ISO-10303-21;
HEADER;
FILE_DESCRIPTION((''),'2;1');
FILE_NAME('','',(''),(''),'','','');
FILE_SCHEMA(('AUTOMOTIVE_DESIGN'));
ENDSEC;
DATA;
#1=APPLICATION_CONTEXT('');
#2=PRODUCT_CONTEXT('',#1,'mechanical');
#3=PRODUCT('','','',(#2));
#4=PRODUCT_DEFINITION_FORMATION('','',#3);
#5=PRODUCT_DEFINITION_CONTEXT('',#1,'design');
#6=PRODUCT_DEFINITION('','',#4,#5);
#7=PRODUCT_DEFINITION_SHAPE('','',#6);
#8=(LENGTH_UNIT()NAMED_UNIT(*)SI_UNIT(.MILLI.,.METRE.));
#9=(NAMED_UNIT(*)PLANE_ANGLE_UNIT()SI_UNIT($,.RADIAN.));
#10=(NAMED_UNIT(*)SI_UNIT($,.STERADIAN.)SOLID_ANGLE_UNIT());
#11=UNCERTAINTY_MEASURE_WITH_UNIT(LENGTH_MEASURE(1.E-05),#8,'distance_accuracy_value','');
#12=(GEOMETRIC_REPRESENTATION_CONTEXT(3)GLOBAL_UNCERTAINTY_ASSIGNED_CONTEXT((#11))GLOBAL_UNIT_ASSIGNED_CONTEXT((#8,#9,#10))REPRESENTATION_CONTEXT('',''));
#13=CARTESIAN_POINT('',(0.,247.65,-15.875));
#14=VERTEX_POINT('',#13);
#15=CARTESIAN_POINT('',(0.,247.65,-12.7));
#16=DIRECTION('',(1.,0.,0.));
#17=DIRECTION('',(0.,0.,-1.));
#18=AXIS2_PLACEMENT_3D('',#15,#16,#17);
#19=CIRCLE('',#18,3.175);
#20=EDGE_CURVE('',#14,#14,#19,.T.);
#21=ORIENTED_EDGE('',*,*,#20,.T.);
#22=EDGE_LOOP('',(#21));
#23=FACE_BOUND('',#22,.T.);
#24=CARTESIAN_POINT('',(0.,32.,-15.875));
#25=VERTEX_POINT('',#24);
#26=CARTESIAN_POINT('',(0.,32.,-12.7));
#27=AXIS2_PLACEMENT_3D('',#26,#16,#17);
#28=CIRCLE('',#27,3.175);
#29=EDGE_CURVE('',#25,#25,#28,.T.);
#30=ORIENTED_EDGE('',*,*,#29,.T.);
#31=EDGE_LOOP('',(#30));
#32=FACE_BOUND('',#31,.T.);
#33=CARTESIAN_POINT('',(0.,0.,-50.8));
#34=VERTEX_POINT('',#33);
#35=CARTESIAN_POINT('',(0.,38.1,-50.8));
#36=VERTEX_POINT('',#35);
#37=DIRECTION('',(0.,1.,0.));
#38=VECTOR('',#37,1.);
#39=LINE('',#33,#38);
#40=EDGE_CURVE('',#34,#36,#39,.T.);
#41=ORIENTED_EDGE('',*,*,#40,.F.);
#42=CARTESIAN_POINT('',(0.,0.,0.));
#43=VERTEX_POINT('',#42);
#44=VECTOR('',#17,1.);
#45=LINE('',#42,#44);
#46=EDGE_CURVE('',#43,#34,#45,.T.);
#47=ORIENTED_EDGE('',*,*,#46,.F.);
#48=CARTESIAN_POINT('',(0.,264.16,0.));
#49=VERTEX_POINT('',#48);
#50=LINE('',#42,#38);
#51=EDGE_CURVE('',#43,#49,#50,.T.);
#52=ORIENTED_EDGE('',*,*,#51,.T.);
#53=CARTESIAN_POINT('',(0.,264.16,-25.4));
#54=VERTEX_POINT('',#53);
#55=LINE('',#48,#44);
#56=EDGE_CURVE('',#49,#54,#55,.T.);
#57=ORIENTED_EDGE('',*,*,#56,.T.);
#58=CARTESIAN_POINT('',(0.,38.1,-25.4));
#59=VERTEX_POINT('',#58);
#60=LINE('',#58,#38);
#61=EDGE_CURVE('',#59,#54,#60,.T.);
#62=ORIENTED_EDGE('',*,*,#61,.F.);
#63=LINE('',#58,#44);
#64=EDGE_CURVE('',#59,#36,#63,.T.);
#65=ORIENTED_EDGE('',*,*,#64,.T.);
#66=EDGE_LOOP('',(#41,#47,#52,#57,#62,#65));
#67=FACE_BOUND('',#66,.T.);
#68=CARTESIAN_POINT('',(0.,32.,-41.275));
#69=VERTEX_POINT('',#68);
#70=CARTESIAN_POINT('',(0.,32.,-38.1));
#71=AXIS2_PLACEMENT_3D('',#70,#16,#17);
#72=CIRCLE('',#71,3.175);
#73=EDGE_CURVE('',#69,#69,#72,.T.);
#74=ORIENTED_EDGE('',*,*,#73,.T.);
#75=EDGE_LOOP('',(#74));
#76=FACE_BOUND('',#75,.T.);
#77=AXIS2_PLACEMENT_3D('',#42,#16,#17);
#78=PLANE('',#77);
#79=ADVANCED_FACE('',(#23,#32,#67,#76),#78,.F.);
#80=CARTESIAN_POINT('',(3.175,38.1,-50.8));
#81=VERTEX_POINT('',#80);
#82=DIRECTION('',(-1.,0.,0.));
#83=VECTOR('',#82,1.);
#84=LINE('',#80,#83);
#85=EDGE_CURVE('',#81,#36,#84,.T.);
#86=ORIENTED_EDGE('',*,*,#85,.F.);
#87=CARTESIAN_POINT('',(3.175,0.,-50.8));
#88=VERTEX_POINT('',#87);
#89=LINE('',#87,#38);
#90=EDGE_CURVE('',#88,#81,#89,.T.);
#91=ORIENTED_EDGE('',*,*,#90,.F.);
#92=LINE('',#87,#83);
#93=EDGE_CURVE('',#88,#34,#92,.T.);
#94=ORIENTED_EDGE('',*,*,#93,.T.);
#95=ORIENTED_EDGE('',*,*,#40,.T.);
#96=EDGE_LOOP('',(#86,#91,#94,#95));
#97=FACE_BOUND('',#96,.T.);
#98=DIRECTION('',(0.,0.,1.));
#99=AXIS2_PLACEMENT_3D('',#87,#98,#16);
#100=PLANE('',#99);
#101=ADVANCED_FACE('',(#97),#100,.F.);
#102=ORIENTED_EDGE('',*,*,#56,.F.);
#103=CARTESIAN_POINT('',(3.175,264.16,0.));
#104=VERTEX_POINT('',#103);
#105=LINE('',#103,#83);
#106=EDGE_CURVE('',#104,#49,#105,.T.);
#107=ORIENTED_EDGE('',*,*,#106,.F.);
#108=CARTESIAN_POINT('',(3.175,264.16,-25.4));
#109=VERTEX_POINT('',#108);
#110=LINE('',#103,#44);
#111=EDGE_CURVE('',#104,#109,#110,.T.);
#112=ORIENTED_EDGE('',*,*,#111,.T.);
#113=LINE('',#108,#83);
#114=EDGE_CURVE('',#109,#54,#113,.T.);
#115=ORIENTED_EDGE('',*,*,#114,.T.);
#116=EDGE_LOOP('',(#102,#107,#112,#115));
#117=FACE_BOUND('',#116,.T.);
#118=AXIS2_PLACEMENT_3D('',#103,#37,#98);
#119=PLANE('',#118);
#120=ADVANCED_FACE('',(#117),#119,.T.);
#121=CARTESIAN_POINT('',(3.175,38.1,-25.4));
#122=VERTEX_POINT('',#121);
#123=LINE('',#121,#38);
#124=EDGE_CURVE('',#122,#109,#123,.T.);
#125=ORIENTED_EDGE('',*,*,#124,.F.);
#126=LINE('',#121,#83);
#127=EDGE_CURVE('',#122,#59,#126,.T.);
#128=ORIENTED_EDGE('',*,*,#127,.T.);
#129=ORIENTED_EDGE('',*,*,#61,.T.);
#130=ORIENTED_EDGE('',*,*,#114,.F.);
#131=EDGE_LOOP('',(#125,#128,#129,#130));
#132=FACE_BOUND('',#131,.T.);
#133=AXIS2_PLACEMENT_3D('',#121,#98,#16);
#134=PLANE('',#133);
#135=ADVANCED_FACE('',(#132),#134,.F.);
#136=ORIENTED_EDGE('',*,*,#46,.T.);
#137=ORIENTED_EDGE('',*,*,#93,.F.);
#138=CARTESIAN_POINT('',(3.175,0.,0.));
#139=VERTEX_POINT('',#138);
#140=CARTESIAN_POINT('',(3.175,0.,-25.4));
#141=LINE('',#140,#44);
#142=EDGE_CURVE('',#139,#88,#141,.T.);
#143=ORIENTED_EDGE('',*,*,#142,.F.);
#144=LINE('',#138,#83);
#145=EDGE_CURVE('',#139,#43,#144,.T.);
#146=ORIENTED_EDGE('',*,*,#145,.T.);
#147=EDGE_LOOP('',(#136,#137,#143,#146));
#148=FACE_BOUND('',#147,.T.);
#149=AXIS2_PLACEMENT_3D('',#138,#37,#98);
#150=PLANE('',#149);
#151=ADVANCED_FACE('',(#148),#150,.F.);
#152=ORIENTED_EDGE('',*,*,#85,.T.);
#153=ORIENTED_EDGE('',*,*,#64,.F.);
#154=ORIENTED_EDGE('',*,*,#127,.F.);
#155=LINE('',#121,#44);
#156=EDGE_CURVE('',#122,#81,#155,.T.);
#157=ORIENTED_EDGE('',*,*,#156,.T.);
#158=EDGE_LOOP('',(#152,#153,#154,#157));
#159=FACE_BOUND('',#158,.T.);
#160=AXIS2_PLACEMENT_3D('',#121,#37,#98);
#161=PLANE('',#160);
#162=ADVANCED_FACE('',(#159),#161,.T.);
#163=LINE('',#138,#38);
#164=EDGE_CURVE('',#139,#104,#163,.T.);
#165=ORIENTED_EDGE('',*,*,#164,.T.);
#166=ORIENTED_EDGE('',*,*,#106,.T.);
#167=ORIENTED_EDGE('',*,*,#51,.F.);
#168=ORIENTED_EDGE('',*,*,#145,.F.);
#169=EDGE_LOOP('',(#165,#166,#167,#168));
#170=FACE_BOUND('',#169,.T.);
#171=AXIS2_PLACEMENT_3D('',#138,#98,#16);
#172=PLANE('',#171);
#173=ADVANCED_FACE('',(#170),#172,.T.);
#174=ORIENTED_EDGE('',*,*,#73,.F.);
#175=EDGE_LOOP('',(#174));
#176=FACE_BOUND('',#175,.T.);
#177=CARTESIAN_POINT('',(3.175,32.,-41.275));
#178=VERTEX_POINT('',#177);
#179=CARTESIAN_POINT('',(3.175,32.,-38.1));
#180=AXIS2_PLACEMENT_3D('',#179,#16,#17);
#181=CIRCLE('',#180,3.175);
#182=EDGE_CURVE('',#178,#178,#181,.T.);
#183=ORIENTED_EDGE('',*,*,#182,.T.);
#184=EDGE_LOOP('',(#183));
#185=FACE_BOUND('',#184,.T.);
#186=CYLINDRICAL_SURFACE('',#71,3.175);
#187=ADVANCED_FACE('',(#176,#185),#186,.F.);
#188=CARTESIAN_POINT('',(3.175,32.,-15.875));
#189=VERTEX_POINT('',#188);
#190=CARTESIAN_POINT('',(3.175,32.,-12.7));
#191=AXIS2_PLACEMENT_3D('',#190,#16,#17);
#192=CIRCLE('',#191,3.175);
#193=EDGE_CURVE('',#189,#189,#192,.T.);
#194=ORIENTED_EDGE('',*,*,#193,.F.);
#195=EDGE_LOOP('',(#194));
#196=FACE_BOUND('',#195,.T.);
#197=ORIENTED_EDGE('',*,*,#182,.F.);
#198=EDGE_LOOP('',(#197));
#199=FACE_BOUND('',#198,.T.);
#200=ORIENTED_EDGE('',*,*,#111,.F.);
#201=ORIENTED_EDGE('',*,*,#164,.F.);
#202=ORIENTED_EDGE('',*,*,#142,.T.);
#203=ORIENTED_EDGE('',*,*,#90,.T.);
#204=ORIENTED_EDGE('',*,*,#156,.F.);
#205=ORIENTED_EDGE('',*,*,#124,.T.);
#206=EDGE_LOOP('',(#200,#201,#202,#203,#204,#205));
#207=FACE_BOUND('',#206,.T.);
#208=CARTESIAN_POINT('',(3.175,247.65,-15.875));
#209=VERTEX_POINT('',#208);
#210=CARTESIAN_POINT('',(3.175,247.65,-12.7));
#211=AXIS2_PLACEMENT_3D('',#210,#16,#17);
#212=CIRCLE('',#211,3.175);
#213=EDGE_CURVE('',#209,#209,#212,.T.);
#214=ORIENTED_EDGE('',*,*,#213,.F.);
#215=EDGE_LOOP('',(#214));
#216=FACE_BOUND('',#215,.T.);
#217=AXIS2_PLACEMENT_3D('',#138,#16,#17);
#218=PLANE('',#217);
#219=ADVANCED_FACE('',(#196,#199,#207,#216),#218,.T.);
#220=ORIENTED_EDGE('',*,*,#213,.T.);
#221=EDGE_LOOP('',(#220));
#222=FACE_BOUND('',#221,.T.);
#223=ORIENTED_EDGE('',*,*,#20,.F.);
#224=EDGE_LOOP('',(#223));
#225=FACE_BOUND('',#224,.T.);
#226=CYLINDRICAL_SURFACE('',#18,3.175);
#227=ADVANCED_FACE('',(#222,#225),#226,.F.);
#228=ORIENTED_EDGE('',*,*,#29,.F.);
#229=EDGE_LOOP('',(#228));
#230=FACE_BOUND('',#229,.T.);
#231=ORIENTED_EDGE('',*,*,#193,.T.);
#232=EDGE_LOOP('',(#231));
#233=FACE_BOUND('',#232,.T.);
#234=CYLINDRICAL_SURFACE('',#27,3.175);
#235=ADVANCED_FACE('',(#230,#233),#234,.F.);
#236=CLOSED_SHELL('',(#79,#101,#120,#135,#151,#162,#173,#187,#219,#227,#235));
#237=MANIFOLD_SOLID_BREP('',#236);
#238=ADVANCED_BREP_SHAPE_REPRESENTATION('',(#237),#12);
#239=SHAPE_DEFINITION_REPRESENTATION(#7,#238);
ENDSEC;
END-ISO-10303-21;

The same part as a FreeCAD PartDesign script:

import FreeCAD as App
import Part
import Sketcher

V = App.Vector
Q = App.Units.Quantity

doc = App.newDocument("Part")
body = doc.addObject("PartDesign::Body", "Body")

# Sketch on YZ plane
sketch1 = body.newObject("Sketcher::SketchObject", "Sketch")
sketch1.AttachmentSupport = (doc.getObject("YZ_Plane"), [""])
sketch1.MapMode = "FlatFace"
sketch1.addGeometry(Part.LineSegment(V(0, 0, 0), V(0, -51, 0)), False)
sketch1.addGeometry(Part.LineSegment(V(0, -51, 0), V(38, -51, 0)), False)
sketch1.addGeometry(Part.LineSegment(V(38, -51, 0), V(38, -25, 0)), False)
sketch1.addGeometry(Part.LineSegment(V(38, -25, 0), V(264, -25, 0)), False)
sketch1.addGeometry(Part.LineSegment(V(264, -25, 0), V(264, 0, 0)), False)
sketch1.addGeometry(Part.LineSegment(V(264, 0, 0), V(0, 0, 0)), False)
sketch1.addConstraint(Sketcher.Constraint("Coincident", 0, 2, 1, 1))
sketch1.addConstraint(Sketcher.Constraint("Coincident", 1, 2, 2, 1))
sketch1.addConstraint(Sketcher.Constraint("Coincident", 2, 2, 3, 1))
sketch1.addConstraint(Sketcher.Constraint("Coincident", 3, 2, 4, 1))
sketch1.addConstraint(Sketcher.Constraint("Coincident", 4, 2, 5, 1))
sketch1.addConstraint(Sketcher.Constraint("Coincident", 5, 2, 0, 1))
sketch1.addConstraint(Sketcher.Constraint("Vertical", 0))
sketch1.addConstraint(Sketcher.Constraint("Horizontal", 1))
sketch1.addConstraint(Sketcher.Constraint("Vertical", 2))
sketch1.addConstraint(Sketcher.Constraint("Horizontal", 3))
sketch1.addConstraint(Sketcher.Constraint("Vertical", 4))
sketch1.addConstraint(Sketcher.Constraint("Horizontal", 5))
sketch1.addConstraint(Sketcher.Constraint("Coincident", 5, 2, -1, 1))
sketch1.addConstraint(Sketcher.Constraint("Equal", 2, 4))
sketch1.addConstraint(Sketcher.Constraint("DistanceY", 0, 2, 0, 1, Q("2 in")))
sketch1.addConstraint(Sketcher.Constraint("DistanceX", 1, 1, 1, 2, Q("1.5 in")))
sketch1.addConstraint(Sketcher.Constraint("DistanceX", 3, 1, 3, 2, Q("8.9 in")))
pad1 = body.newObject("PartDesign::Pad", "Pad")
pad1.Profile = sketch1
pad1.Length = Q("0.125 in")

# Sketch on YZ plane
sketch2 = body.newObject("Sketcher::SketchObject", "Sketch001")
sketch2.AttachmentSupport = (doc.getObject("YZ_Plane"), [""])
sketch2.MapMode = "FlatFace"
sketch2.AttachmentOffset = App.Placement(V(0, 0, 0.125 * 25.4), App.Rotation())
sketch2.addGeometry(Part.Circle(V(247.7, -12.7, 0), V(0, 0, 1), 3.2), False)
sketch2.addGeometry(Part.Circle(V(32, -38.1, 0), V(0, 0, 1), 3.2), False)
sketch2.addGeometry(Part.Circle(V(32, -12.7, 0), V(0, 0, 1), 3.2), False)
sketch2.addConstraint(Sketcher.Constraint("Equal", 0, 1))
sketch2.addConstraint(Sketcher.Constraint("Equal", 1, 2))
sketch2.addConstraint(Sketcher.Constraint("Horizontal", 0, 3, 2, 3))
sketch2.addConstraint(Sketcher.Constraint("Vertical", 1, 3, 2, 3))
sketch2.addConstraint(Sketcher.Constraint("Diameter", 0, Q("0.25 in")))
sketch2.addConstraint(Sketcher.Constraint("DistanceY", 1, 3, 0, 3, Q("1 in")))
sketch2.addConstraint(Sketcher.Constraint("DistanceY", 0, 3, -1, 1, Q("0.5 in")))
sketch2.addConstraint(Sketcher.Constraint("DistanceX", -1, 1, 0, 3, Q("9.75 in")))
sketch2.addConstraint(Sketcher.Constraint("DistanceX", -1, 1, 1, 3, 32.0))
pocket1 = body.newObject("PartDesign::Pocket", "Pocket")
pocket1.Profile = sketch2
pocket1.Length = Q("0.125 in")

doc.recompute()
